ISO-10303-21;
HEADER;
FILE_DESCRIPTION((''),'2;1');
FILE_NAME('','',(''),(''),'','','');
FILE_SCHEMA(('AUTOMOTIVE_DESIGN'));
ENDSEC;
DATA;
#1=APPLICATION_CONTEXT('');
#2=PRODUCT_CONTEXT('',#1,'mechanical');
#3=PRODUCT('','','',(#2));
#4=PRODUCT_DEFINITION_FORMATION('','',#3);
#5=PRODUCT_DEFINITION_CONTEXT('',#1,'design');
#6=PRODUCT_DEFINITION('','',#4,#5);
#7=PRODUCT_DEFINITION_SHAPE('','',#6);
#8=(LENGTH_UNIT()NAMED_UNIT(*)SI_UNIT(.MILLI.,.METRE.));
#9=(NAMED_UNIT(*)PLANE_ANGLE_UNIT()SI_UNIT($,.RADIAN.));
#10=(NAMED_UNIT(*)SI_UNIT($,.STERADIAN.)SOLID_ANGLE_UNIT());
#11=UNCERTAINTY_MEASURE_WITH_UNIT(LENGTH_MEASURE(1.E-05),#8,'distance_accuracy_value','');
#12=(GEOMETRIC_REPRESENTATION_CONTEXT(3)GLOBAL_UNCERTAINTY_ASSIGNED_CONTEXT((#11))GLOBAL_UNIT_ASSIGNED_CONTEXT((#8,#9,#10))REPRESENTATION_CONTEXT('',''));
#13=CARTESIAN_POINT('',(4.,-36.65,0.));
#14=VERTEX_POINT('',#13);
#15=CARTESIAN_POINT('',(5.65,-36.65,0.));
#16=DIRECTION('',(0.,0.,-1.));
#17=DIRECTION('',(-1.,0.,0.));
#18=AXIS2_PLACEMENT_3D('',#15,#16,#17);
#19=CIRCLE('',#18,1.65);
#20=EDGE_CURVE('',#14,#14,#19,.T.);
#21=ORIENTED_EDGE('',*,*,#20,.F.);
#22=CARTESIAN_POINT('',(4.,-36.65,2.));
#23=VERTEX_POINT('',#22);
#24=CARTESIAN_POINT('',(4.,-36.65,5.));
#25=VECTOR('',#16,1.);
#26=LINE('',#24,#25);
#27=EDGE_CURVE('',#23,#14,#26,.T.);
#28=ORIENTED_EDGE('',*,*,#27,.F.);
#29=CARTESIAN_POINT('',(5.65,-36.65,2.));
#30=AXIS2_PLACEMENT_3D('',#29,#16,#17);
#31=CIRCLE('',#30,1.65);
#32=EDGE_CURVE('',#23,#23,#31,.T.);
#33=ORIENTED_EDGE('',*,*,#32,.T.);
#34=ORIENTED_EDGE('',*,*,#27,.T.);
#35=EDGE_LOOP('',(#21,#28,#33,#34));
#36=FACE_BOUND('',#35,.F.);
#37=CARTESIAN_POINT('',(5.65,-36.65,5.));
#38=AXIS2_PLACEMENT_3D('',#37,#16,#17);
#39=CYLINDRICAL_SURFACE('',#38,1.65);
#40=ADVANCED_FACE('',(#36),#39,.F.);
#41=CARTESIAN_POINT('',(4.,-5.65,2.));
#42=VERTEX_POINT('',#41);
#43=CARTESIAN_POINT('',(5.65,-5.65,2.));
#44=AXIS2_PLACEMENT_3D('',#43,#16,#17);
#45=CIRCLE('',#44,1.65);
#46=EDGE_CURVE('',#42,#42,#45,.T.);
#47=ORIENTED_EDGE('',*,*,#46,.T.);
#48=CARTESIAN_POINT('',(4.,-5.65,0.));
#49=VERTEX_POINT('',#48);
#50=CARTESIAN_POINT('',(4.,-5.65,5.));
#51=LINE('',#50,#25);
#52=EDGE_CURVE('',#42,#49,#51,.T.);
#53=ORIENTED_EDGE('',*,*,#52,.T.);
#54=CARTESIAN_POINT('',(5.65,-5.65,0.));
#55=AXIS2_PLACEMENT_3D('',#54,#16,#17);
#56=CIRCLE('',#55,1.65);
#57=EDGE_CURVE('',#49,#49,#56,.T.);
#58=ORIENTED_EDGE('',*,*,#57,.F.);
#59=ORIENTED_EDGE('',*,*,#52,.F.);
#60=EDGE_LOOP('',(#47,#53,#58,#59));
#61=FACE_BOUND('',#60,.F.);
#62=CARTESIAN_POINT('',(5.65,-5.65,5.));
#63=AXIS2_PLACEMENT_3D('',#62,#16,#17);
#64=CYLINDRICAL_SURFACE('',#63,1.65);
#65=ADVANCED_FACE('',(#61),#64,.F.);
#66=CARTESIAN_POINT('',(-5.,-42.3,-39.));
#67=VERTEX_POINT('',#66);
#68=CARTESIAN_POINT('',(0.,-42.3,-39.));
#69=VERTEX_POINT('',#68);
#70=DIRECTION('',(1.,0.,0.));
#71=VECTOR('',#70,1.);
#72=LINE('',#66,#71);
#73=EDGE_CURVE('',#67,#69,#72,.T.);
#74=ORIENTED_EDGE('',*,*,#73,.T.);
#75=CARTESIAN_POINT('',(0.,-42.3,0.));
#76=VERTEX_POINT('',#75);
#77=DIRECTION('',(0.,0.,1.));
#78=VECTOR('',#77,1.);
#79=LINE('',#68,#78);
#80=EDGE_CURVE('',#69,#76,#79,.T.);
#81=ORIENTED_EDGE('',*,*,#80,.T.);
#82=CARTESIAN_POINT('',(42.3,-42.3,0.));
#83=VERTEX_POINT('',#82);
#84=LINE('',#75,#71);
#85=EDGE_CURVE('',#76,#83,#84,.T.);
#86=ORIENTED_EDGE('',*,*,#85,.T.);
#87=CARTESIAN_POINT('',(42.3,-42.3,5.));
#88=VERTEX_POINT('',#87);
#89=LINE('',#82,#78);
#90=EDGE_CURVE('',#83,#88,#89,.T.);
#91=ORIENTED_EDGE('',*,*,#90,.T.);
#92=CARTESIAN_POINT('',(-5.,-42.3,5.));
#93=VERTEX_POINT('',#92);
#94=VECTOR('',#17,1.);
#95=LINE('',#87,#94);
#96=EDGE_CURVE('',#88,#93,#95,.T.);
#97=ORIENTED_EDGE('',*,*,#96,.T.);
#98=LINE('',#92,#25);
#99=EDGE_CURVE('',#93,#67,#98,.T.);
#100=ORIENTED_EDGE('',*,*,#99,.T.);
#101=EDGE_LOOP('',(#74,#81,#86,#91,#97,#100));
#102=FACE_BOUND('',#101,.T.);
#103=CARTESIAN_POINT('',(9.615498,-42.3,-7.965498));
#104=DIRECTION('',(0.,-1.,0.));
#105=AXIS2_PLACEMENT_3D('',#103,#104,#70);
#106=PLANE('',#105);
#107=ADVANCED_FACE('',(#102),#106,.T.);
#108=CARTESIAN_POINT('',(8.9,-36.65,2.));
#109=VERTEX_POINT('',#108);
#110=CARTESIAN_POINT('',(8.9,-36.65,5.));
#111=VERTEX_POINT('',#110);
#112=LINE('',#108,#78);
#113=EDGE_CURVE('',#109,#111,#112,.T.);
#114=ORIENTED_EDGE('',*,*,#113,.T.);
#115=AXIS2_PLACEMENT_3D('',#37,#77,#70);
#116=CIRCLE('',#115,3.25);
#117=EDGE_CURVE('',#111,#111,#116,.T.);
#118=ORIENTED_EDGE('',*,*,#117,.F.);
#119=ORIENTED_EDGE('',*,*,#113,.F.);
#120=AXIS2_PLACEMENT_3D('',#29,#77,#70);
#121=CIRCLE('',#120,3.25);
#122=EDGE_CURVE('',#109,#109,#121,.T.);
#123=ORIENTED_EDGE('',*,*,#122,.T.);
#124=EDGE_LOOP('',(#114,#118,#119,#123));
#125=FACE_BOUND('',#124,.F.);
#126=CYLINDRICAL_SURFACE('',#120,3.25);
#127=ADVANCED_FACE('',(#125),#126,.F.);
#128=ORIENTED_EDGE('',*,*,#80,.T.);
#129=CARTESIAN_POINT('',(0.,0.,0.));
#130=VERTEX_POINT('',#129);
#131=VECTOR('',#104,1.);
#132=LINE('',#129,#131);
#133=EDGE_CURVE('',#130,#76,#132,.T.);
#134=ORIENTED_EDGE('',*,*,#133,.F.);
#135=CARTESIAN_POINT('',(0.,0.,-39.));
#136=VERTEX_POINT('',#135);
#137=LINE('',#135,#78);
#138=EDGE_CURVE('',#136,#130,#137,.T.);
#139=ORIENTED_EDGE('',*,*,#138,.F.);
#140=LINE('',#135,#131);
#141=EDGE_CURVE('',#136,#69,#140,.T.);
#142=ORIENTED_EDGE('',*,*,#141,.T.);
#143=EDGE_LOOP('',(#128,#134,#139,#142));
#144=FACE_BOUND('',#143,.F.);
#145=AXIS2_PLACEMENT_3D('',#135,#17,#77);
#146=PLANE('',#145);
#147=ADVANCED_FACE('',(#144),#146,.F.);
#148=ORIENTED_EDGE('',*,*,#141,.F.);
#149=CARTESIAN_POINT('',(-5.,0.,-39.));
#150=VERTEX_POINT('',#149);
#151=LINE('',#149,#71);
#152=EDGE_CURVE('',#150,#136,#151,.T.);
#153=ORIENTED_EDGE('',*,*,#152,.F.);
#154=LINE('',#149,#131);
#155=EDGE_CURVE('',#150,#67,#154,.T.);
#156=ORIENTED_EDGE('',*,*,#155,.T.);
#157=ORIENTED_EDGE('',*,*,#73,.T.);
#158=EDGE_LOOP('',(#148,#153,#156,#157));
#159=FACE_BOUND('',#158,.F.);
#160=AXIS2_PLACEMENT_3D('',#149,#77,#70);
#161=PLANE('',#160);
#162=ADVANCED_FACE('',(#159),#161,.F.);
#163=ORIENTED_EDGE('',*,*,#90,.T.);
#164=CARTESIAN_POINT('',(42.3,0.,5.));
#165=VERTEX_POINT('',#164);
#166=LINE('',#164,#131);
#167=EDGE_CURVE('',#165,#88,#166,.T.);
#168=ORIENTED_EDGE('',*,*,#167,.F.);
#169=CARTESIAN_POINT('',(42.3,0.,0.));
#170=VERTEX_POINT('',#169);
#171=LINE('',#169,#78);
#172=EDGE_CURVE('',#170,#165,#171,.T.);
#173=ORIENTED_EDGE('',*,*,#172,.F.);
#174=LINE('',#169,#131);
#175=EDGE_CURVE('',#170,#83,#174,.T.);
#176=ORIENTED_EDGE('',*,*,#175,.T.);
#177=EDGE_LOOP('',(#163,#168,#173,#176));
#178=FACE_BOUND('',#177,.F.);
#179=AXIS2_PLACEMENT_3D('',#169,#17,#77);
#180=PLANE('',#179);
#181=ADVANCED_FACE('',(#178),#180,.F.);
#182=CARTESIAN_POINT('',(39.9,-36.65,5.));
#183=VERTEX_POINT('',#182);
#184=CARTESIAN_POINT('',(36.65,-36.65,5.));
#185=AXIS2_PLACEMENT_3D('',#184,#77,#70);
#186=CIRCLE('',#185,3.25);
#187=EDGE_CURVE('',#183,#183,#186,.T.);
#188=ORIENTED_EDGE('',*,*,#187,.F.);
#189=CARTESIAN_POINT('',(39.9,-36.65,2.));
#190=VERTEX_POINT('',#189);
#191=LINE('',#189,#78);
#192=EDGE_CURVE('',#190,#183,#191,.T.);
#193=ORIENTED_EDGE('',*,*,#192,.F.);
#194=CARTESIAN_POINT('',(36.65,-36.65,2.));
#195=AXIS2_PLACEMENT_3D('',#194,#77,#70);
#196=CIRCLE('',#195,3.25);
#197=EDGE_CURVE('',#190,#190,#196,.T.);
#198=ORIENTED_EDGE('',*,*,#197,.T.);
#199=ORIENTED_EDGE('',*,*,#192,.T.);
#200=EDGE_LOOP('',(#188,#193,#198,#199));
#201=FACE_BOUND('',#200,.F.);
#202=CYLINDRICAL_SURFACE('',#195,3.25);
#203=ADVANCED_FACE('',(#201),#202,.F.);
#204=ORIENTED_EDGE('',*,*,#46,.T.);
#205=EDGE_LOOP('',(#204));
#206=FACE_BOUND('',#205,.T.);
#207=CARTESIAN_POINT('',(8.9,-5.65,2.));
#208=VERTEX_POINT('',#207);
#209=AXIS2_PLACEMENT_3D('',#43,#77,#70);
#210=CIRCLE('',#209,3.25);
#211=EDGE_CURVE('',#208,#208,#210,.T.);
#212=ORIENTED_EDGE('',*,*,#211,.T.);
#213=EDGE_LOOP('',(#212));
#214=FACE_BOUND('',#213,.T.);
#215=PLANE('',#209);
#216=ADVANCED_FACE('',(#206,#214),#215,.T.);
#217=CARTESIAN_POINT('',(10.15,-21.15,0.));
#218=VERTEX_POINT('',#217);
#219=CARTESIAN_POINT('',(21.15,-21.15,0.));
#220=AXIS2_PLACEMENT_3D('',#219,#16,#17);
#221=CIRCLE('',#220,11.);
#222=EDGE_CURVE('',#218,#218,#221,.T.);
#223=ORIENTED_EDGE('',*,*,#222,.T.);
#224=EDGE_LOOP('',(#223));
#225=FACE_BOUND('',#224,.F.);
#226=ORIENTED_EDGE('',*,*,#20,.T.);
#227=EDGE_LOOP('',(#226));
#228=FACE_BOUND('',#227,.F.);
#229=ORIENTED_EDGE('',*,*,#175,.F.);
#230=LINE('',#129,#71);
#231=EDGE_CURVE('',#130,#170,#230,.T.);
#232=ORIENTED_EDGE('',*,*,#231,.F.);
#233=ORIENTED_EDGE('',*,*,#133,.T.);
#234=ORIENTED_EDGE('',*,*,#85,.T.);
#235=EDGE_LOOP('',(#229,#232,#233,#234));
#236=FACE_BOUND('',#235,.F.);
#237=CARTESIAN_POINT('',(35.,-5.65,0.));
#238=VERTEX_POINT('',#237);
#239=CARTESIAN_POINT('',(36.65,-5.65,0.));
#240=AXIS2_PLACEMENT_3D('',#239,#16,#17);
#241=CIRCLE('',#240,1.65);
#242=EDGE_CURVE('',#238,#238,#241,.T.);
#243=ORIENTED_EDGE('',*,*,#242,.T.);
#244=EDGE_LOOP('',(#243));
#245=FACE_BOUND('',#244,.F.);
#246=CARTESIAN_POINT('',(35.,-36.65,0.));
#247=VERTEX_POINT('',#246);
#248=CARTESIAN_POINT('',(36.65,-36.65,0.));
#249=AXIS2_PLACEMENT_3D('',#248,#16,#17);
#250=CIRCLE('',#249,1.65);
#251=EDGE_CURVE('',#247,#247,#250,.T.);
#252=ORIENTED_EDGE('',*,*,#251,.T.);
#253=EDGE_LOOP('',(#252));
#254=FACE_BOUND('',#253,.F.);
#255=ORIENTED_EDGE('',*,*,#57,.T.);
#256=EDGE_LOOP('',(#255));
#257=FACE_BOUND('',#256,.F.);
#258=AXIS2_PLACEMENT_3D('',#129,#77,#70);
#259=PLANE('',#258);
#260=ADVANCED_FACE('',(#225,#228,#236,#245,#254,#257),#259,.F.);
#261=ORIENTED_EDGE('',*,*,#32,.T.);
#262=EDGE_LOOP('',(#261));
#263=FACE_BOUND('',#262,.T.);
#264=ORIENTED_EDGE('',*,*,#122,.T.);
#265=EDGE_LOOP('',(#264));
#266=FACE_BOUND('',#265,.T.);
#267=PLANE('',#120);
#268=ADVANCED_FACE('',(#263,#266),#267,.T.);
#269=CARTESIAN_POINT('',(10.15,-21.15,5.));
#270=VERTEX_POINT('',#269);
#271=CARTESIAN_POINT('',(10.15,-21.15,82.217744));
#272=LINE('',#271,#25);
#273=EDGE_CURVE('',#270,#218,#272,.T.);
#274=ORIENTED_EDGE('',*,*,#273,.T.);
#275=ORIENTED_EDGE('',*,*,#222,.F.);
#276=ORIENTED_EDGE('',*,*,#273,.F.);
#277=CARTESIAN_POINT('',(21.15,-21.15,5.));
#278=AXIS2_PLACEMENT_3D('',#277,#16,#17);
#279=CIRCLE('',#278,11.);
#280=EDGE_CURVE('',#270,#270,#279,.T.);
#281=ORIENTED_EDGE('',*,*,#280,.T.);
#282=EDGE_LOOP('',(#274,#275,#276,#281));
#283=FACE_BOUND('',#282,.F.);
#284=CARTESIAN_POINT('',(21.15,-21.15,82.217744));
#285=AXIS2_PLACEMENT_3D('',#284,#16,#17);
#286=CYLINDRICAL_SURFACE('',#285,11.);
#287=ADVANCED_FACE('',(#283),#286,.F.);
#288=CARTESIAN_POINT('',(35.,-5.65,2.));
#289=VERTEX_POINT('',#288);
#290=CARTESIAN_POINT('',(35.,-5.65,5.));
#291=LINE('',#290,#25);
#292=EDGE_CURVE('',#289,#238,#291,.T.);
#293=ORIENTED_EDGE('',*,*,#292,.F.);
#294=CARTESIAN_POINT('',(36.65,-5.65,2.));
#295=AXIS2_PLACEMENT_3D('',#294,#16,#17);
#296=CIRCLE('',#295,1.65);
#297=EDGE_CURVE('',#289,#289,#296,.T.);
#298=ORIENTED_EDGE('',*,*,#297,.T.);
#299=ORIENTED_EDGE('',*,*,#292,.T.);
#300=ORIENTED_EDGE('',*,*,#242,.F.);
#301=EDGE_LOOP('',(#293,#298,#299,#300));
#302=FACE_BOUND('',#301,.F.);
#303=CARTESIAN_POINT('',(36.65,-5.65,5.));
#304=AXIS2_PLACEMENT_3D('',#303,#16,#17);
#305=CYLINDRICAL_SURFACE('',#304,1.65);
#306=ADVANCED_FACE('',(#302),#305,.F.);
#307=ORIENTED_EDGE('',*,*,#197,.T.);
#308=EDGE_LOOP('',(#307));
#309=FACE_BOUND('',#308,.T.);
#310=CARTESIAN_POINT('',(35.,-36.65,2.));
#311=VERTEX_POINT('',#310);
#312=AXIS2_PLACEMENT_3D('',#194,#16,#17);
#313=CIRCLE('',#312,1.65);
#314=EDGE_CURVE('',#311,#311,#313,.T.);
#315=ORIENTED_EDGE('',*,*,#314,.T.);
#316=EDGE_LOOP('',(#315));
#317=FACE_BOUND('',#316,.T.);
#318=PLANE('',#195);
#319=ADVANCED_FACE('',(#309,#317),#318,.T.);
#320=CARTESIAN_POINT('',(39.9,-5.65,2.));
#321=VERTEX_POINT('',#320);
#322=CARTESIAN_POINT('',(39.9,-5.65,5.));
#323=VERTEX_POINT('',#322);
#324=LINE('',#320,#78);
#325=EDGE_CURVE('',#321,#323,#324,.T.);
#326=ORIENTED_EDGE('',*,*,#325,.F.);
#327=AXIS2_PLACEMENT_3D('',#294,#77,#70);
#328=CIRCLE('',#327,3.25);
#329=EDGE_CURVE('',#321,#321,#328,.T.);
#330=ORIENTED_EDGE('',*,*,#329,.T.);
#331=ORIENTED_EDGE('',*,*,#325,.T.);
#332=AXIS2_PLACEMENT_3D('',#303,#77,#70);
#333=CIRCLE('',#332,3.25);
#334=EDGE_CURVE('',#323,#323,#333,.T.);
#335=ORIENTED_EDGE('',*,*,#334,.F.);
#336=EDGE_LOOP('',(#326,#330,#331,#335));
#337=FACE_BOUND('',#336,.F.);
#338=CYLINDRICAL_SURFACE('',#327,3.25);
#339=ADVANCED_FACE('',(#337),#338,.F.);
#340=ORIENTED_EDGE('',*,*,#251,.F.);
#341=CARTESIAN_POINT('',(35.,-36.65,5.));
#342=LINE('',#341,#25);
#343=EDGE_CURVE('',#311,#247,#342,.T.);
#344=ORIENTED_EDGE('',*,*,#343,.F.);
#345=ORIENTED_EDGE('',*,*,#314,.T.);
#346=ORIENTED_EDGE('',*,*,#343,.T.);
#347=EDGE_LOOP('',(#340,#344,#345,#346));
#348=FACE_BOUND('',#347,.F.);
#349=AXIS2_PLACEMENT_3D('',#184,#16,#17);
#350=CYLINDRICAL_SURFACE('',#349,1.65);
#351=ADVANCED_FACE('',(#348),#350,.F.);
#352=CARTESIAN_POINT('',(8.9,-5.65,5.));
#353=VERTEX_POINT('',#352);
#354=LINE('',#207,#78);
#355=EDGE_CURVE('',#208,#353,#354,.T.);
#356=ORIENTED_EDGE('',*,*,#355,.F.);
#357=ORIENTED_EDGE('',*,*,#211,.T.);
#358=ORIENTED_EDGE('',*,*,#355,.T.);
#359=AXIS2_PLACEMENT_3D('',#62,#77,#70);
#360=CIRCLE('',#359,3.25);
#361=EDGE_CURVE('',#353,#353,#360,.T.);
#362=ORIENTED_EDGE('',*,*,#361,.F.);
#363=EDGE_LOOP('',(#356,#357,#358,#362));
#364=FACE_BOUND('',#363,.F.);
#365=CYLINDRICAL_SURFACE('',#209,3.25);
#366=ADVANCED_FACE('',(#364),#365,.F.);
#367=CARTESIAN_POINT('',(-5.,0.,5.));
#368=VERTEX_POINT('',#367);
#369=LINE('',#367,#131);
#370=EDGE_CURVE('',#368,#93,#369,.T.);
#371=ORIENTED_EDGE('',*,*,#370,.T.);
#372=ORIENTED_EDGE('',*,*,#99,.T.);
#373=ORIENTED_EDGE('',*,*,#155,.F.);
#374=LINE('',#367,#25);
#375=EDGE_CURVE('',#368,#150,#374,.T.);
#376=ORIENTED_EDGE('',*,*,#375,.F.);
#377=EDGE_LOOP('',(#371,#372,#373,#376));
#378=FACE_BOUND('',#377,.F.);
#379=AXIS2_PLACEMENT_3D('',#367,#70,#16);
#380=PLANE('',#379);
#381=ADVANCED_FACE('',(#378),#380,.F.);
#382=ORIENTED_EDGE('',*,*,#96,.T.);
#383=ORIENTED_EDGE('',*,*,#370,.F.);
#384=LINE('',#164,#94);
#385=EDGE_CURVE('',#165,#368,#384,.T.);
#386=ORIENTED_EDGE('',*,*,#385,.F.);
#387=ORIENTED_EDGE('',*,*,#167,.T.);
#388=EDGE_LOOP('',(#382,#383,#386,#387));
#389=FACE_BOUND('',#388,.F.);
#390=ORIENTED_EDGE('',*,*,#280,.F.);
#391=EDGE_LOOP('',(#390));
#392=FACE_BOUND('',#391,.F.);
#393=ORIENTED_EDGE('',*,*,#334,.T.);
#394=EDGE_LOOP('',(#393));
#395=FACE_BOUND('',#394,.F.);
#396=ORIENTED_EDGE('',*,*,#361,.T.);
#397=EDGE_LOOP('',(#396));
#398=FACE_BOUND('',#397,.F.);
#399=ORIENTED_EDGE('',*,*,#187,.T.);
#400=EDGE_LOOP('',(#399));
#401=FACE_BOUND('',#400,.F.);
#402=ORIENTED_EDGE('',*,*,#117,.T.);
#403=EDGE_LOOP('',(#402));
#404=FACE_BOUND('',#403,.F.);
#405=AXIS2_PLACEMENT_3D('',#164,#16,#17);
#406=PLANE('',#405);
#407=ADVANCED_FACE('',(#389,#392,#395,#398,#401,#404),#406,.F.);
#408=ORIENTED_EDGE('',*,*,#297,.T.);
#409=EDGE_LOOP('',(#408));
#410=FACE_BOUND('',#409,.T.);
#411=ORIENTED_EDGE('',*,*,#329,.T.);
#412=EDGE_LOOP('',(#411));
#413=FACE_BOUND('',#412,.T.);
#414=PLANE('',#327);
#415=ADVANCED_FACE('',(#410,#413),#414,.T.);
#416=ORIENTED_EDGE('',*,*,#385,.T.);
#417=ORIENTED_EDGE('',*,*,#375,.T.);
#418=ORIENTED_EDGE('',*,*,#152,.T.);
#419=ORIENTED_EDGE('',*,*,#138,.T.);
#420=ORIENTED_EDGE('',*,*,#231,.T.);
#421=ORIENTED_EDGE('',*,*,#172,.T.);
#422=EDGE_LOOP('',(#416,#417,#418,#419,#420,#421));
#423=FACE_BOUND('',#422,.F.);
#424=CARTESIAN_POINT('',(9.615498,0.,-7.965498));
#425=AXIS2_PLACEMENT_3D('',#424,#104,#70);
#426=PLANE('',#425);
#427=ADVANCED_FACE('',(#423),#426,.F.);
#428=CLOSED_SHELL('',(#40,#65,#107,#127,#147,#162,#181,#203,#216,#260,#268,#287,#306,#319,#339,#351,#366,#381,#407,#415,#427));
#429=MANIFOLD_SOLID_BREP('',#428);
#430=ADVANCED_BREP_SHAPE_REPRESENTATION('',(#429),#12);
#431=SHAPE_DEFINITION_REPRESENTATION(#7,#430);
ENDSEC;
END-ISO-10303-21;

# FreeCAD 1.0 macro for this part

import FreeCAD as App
import Part
import Sketcher
Q = App.Units.Quantity


def add_polygon(sketch, points):
    """Adds a closed chain of lines whose ends are joined by coincident constraints."""
    first, n = sketch.GeometryCount, len(points)
    for a, b in zip(points, points[1:] + points[:1]):
        sketch.addGeometry(Part.LineSegment(App.Vector(*a, 0), App.Vector(*b, 0)), False)
    for i in range(n):
        sketch.addConstraint(Sketcher.Constraint("Coincident", first + i, 2, first + (i + 1) % n, 1))

doc = App.newDocument("Part")
body = doc.addObject("PartDesign::Body", "Body")

sketch1 = body.newObject("Sketcher::SketchObject", "Sketch")
sketch1.AttachmentSupport = (doc.getObject("XZ_Plane"), [""])
sketch1.MapMode = "FlatFace"
add_polygon(sketch1, [(0, -39), (0, 0), (42.3, 0), (42.3, 5), (-5, 5), (-5, -39)])
sketch1.addConstraint([
    Sketcher.Constraint("Vertical", 0),
    Sketcher.Constraint("Horizontal", 1),
    Sketcher.Constraint("Vertical", 2),
    Sketcher.Constraint("Horizontal", 3),
    Sketcher.Constraint("Vertical", 4),
    Sketcher.Constraint("Horizontal", 5),
    Sketcher.Constraint("Coincident", 0, 2, -1, 1),
    Sketcher.Constraint("Equal", 5, 2),
    Sketcher.Constraint("DistanceX", 5, 1, 5, 2, Q("5 mm")),
    Sketcher.Constraint("DistanceY", 0, 1, 0, 2, Q("39 mm")),
    Sketcher.Constraint("DistanceX", 1, 1, 1, 2, Q("42.3 mm")),
])
pad1 = body.newObject("PartDesign::Pad", "Pad")
pad1.Profile = sketch1
pad1.Length = 42.3

sketch2 = body.newObject("Sketcher::SketchObject", "Sketch001")
sketch2.AttachmentSupport = (doc.getObject("XY_Plane"), [""])
sketch2.MapMode = "FlatFace"
sketch2.AttachmentOffset = App.Placement(App.Vector(0, 0, 5), App.Rotation())
sketch2.addGeometry([
    Part.Circle(App.Vector(5.65, -5.65, 0), App.Vector(0, 0, 1), 1.65),
    Part.Circle(App.Vector(36.65, -5.65, 0), App.Vector(0, 0, 1), 1.65),
    Part.Circle(App.Vector(36.65, -36.65, 0), App.Vector(0, 0, 1), 1.65),
    Part.Circle(App.Vector(5.65, -36.65, 0), App.Vector(0, 0, 1), 1.65),
], False)
sketch2.addConstraint([
    Sketcher.Constraint("Equal", 0, 1),
    Sketcher.Constraint("Equal", 1, 2),
    Sketcher.Constraint("Equal", 2, 3),
    Sketcher.Constraint("Horizontal", 0, 3, 1, 3),
    Sketcher.Constraint("Horizontal", 2, 3, 3, 3),
    Sketcher.Constraint("Vertical", 1, 3, 2, 3),
    Sketcher.Constraint("Vertical", 0, 3, 3, 3),
    Sketcher.Constraint("Diameter", 0, Q("3.3 mm")),
    Sketcher.Constraint("DistanceX", 0, 3, 1, 3, Q("31 mm")),
    Sketcher.Constraint("DistanceY", 2, 3, 1, 3, Q("31 mm")),
    Sketcher.Constraint("DistanceX", -1, 1, 0, 3, Q("5.65 mm")),
    Sketcher.Constraint("DistanceY", 0, 3, -1, 1, Q("5.65 mm")),
])
doc.recompute()
hole = body.newObject("PartDesign::Hole", "Hole")
hole.Profile = sketch2
hole.ThreadType = "None"
hole.Diameter = 3.3
hole.DepthType = "Dimension"
hole.Depth = 10
hole.DrillPoint = "Angled"
hole.DrillPointAngle = 118
hole.HoleCutType = "Counterbore"
hole.HoleCutDiameter = 6.5
hole.HoleCutDepth = 3

sketch3 = body.newObject("Sketcher::SketchObject", "Sketch002")
sketch3.AttachmentSupport = (doc.getObject("XY_Plane"), [""])
sketch3.MapMode = "FlatFace"
sketch3.AttachmentOffset = App.Placement(App.Vector(0, 0, 5), App.Rotation())
sketch3.addGeometry(Part.Circle(App.Vector(21.15, -21.15, 0), App.Vector(0, 0, 1), 11), False)
sketch3.addConstraint([
    Sketcher.Constraint("Diameter", 0, Q("22 mm")),
    Sketcher.Constraint("DistanceX", -1, 1, 0, 3, Q("21.15 mm")),
    Sketcher.Constraint("DistanceY", 0, 3, -1, 1, Q("21.15 mm")),
])
doc.recompute()
hole2 = body.newObject("PartDesign::Hole", "Hole001")
hole2.Profile = sketch3
hole2.ThreadType = "None"
hole2.Diameter = 22
hole2.DepthType = "ThroughAll"

doc.recompute()
